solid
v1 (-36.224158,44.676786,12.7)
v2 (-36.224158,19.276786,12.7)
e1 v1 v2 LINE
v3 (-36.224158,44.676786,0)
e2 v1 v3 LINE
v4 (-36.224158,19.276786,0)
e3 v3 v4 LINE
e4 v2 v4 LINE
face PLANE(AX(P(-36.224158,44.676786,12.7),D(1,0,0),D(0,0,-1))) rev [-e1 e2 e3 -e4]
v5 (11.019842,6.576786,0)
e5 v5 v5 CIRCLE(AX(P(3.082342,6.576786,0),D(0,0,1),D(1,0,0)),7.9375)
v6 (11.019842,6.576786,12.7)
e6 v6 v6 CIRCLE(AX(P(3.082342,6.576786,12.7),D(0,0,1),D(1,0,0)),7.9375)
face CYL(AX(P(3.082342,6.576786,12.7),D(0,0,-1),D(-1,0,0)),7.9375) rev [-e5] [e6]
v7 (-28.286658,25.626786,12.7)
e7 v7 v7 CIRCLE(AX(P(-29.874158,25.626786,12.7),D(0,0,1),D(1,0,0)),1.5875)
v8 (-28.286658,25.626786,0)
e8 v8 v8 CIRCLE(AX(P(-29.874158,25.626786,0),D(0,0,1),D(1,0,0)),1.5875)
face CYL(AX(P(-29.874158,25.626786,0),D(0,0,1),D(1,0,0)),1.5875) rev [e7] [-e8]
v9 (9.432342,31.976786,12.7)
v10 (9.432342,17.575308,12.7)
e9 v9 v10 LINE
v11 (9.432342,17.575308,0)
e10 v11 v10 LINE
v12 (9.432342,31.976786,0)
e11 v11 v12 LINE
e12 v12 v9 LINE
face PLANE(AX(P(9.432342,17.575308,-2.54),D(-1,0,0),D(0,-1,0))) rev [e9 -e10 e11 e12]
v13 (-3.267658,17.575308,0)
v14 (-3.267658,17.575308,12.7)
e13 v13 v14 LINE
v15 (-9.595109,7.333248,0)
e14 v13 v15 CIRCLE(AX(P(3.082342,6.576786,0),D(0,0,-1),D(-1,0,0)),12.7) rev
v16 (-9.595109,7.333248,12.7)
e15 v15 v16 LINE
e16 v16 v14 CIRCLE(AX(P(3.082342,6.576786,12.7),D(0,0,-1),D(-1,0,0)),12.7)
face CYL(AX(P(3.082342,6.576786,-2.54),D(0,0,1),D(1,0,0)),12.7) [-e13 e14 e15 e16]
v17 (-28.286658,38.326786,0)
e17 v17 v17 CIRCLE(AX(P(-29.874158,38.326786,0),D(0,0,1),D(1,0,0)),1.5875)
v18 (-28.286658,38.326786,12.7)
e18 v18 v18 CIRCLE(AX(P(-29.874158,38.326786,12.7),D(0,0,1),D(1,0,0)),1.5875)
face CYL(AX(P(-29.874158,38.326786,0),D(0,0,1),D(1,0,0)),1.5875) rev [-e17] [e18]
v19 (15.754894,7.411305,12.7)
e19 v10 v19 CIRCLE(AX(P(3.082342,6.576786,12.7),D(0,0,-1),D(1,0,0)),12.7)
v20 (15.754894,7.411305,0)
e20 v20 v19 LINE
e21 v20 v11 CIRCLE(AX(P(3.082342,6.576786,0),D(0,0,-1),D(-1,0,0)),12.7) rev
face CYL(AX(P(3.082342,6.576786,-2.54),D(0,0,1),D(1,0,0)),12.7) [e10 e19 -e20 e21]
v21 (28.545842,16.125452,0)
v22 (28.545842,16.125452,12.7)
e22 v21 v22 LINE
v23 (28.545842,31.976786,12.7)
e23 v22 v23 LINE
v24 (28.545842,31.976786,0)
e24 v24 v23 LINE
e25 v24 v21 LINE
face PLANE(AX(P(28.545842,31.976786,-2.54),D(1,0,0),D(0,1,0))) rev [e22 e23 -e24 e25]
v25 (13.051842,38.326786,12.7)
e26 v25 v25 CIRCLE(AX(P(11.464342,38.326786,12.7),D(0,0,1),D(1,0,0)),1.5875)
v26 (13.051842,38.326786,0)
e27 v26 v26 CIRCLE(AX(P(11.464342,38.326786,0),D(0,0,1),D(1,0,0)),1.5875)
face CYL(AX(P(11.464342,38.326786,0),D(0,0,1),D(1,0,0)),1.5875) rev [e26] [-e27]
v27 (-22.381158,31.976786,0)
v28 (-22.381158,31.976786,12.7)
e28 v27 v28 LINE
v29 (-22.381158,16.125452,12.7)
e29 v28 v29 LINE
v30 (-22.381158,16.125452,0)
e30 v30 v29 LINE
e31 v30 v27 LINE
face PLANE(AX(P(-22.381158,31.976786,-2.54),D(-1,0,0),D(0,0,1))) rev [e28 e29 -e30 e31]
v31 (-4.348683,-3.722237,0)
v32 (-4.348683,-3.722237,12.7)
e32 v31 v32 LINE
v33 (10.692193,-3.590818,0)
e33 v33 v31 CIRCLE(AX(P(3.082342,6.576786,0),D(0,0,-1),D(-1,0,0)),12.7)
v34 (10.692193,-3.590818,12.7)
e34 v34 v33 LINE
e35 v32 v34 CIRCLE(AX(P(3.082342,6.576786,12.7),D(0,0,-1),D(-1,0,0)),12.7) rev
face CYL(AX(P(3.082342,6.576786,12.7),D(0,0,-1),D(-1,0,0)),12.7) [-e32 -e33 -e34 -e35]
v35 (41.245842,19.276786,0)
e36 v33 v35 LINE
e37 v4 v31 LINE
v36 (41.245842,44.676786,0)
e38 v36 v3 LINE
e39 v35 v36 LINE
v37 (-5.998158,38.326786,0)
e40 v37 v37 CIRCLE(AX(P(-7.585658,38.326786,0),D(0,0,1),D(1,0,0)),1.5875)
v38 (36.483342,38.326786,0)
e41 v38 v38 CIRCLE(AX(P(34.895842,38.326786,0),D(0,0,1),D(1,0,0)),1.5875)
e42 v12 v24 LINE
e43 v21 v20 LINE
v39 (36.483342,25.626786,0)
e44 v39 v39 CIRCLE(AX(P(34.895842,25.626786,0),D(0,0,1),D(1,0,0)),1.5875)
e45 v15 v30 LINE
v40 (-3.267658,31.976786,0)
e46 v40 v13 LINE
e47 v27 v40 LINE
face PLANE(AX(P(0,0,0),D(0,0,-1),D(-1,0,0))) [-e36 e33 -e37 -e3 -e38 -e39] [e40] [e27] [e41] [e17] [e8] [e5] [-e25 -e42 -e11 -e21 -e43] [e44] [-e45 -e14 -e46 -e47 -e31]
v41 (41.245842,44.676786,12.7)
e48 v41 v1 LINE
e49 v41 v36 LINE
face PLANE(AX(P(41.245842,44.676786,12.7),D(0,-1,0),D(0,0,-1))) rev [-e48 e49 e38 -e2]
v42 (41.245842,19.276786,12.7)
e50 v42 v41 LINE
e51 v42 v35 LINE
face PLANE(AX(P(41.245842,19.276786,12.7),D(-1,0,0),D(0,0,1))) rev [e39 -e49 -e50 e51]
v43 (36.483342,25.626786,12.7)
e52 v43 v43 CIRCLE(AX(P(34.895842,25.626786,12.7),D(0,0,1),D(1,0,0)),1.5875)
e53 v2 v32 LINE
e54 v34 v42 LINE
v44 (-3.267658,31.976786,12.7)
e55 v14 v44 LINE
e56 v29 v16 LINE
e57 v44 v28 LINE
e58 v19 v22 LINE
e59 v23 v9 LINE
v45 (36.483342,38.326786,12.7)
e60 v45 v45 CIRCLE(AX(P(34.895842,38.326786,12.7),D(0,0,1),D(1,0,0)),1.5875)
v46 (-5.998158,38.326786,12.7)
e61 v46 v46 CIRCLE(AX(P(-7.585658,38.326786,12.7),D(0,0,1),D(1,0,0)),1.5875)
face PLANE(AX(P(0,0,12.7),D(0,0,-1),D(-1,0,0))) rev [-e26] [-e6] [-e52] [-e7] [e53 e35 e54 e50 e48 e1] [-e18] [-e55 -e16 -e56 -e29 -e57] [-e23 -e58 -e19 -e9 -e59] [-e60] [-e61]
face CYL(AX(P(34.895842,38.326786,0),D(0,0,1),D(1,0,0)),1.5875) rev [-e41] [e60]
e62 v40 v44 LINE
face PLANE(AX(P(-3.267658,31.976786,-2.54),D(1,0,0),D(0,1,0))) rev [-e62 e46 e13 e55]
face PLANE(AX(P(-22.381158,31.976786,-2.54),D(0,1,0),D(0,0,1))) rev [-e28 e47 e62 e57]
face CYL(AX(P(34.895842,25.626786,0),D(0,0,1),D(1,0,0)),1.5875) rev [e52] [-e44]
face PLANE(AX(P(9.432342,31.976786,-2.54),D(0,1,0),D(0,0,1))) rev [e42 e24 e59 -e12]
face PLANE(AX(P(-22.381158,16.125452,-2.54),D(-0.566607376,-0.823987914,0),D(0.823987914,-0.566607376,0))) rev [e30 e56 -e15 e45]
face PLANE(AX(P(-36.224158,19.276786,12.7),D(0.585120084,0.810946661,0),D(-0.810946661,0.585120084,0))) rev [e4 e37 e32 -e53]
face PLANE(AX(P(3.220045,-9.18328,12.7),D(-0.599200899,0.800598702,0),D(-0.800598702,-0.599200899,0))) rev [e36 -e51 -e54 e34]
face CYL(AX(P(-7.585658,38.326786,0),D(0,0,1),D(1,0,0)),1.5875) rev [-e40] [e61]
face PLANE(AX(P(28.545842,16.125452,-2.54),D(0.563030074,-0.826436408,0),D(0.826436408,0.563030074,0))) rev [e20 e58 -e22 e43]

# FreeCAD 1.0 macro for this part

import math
import FreeCAD as App
import Part
import Sketcher
from FreeCAD import Vector
Q = App.Units.Quantity


def edges_at(feature, points):
    """Names of the edges that pass closest to the given points."""
    edges = feature.Shape.Edges
    near = lambda p: min(range(len(edges)), key=lambda i: edges[i].distToShape(Part.Vertex(*p))[0])
    return sorted({f"Edge{near(p) + 1}" for p in points})


def add_polygon(sketch, points):
    """Adds a closed chain of lines whose ends are joined by coincident constraints."""
    first, n = sketch.GeometryCount, len(points)
    for a, b in zip(points, points[1:] + points[:1]):
        sketch.addGeometry(Part.LineSegment(App.Vector(*a, 0), App.Vector(*b, 0)), False)
    for i in range(n):
        sketch.addConstraint(Sketcher.Constraint("Coincident", first + i, 2, first + (i + 1) % n, 1))

doc = App.newDocument("Part")
params = doc.addObject("Spreadsheet::Sheet", "Params")
for row, (alias, value) in enumerate([
    ("sketch1_height", "1 in"),
    ("sketch1_diameter", "0.625 in"),
    ("sketch1_width", "3.05 in"),
    ("pad1_length", "0.5 in"),
    ("sketch2_diameter", "0.125 in"),
    ("pocket1_length", "0.5 in"),
    ("sketch3_radius", "0.5 in"),
    ("pocket2_length", "0.6 in"),
    ("fillet_radius", "0.5 in"),
], start=1):
    params.set(f"A{row}", alias)
    params.set(f"B{row}", "=" + value)
    params.setAlias(f"B{row}", alias)

body = doc.addObject("PartDesign::Body", "Body")

# Sketch on XY plane
sketch1 = body.newObject("Sketcher::SketchObject", "Sketch")
sketch1.AttachmentSupport = (doc.getObject("XY_Plane"), [""])
sketch1.MapMode = "FlatFace"
add_polygon(sketch1, [(41, 19), (41, 45), (-36, 45), (-36, 19), (3, -9)])  # lines 0-4
sketch1.addGeometry(Part.Circle(Vector(3, 7, 0), Vector(0, 0, 1), 8), False)  # 5
sketch1.addConstraint(Sketcher.Constraint("Vertical", 0))
sketch1.addConstraint(Sketcher.Constraint("Horizontal", 1))
sketch1.addConstraint(Sketcher.Constraint("Vertical", 2))
sketch1.addConstraint(Sketcher.Constraint("Horizontal", 2, 2, 4, 2))
sketch1.addConstraint(Sketcher.Constraint("DistanceY", 0, 1, 0, 2, Q("1 in")))
sketch1.addConstraint(Sketcher.Constraint("Diameter", 5, Q("0.625 in")))
sketch1.addConstraint(Sketcher.Constraint("DistanceX", 1, 2, 1, 1, Q("3.05 in")))
sketch1.addConstraint(Sketcher.Constraint("DistanceY", 5, 3, 0, 2, Q("1.5 in")))
sketch1.addConstraint(Sketcher.Constraint("DistanceX", 5, 3, 0, 2, Q("1.5025 in")))
sketch1.addConstraint(Sketcher.Constraint("Distance", 3, Q("48.639701 mm")))
sketch1.addConstraint(Sketcher.Constraint("Distance", 4, Q("47.496701 mm")))
sketch1.addConstraint(Sketcher.Constraint("DistanceX", -1, 1, 5, 3, Q("3.082342 mm")))
sketch1.addConstraint(Sketcher.Constraint("DistanceY", 3, 2, -1, 1, Q("9.18328 mm")))
sketch1.setExpression("Constraints[9]", "Params.sketch1_height")
sketch1.setExpression("Constraints[10]", "Params.sketch1_diameter")
sketch1.setExpression("Constraints[11]", "Params.sketch1_width")
pad1 = body.newObject("PartDesign::Pad", "Pad")
pad1.Profile = sketch1
pad1.setExpression("Length", "Params.pad1_length")

# Sketch on XY plane
sketch2 = body.newObject("Sketcher::SketchObject", "Sketch001")
sketch2.AttachmentSupport = (doc.getObject("XY_Plane"), [""])
sketch2.MapMode = "FlatFace"
sketch2.AttachmentOffset = App.Placement(Vector(0, 0, 0.5 * 25.4), App.Rotation())
sketch2.addGeometry(Part.Circle(Vector(-29.9, 38.3, 0), Vector(0, 0, 1), 1.6), False)
sketch2.addGeometry(Part.Circle(Vector(-29.9, 25.6, 0), Vector(0, 0, 1), 1.6), False)
sketch2.addGeometry(Part.Circle(Vector(34.9, 38.3, 0), Vector(0, 0, 1), 1.6), False)
sketch2.addGeometry(Part.Circle(Vector(34.9, 25.6, 0), Vector(0, 0, 1), 1.6), False)
sketch2.addGeometry(Part.Circle(Vector(-7.6, 38.3, 0), Vector(0, 0, 1), 1.6), False)
sketch2.addGeometry(Part.Circle(Vector(11.5, 38.3, 0), Vector(0, 0, 1), 1.6), False)
sketch2.addConstraint(Sketcher.Constraint("Equal", 0, 1))
sketch2.addConstraint(Sketcher.Constraint("Equal", 1, 2))
sketch2.addConstraint(Sketcher.Constraint("Equal", 2, 3))
sketch2.addConstraint(Sketcher.Constraint("Equal", 3, 4))
sketch2.addConstraint(Sketcher.Constraint("Equal", 4, 5))
sketch2.addConstraint(Sketcher.Constraint("Horizontal", 0, 3, 2, 3))
sketch2.addConstraint(Sketcher.Constraint("Horizontal", 1, 3, 3, 3))
sketch2.addConstraint(Sketcher.Constraint("Horizontal", 2, 3, 4, 3))
sketch2.addConstraint(Sketcher.Constraint("Horizontal", 4, 3, 5, 3))
sketch2.addConstraint(Sketcher.Constraint("Vertical", 0, 3, 1, 3))
sketch2.addConstraint(Sketcher.Constraint("Vertical", 2, 3, 3, 3))
sketch2.addConstraint(Sketcher.Constraint("Diameter", 0, Q("0.125 in")))
sketch2.addConstraint(Sketcher.Constraint("DistanceY", 1, 3, 0, 3, Q("0.5 in")))
sketch2.addConstraint(Sketcher.Constraint("DistanceX", 0, 3, 2, 3, Q("2.55 in")))
sketch2.addConstraint(Sketcher.Constraint("DistanceX", 4, 3, 5, 3, Q("0.75 in")))
sketch2.addConstraint(Sketcher.Constraint("DistanceX", 0, 3, 4, 3, Q("0.8775 in")))
sketch2.addConstraint(Sketcher.Constraint("DistanceX", 0, 3, -1, 1, Q("29.874158 mm")))
sketch2.addConstraint(Sketcher.Constraint("DistanceY", -1, 1, 0, 3, Q("38.326786 mm")))
sketch2.setExpression("Constraints[11]", "Params.sketch2_diameter")
pocket1 = body.newObject("PartDesign::Pocket", "Pocket")
pocket1.Profile = sketch2
pocket1.setExpression("Length", "Params.pocket1_length")

# Sketch on XY plane
sketch3 = body.newObject("Sketcher::SketchObject", "Sketch002")
sketch3.AttachmentSupport = (doc.getObject("XY_Plane"), [""])
sketch3.MapMode = "FlatFace"
sketch3.AttachmentOffset = App.Placement(Vector(0, 0, 0.5 * 25.4), App.Rotation())
sketch3.addGeometry(Part.LineSegment(Vector(-3, 32, 0), Vector(-22, 32, 0)), False)
sketch3.addGeometry(Part.LineSegment(Vector(-22, 32, 0), Vector(-22, 16, 0)), False)
sketch3.addGeometry(Part.LineSegment(Vector(-22, 16, 0), Vector(-10, 7, 0)), False)
sketch3.addGeometry(Part.ArcOfCircle(Part.Circle(Vector(3, 7, 0), Vector(0, 0, 1), 13), math.radians(120), math.radians(177)), False)
sketch3.addGeometry(Part.LineSegment(Vector(-3, 18, 0), Vector(-3, 32, 0)), False)
sketch3.addGeometry(Part.LineSegment(Vector(9, 32, 0), Vector(9, 18, 0)), False)
sketch3.addGeometry(Part.ArcOfCircle(Part.Circle(Vector(3, 7, 0), Vector(0, 0, 1), 13), math.radians(4), math.radians(60)), False)
sketch3.addGeometry(Part.LineSegment(Vector(16, 7, 0), Vector(29, 16, 0)), False)
sketch3.addGeometry(Part.LineSegment(Vector(29, 16, 0), Vector(29, 32, 0)), False)
sketch3.addGeometry(Part.LineSegment(Vector(29, 32, 0), Vector(9, 32, 0)), False)
sketch3.addConstraint(Sketcher.Constraint("Coincident", 0, 2, 1, 1))
sketch3.addConstraint(Sketcher.Constraint("Coincident", 1, 2, 2, 1))
sketch3.addConstraint(Sketcher.Constraint("Coincident", 2, 2, 3, 2))
sketch3.addConstraint(Sketcher.Constraint("Coincident", 3, 1, 4, 1))
sketch3.addConstraint(Sketcher.Constraint("Coincident", 4, 2, 0, 1))
sketch3.addConstraint(Sketcher.Constraint("Coincident", 5, 2, 6, 2))
sketch3.addConstraint(Sketcher.Constraint("Coincident", 6, 1, 7, 1))
sketch3.addConstraint(Sketcher.Constraint("Coincident", 7, 2, 8, 1))
sketch3.addConstraint(Sketcher.Constraint("Coincident", 8, 2, 9, 1))
sketch3.addConstraint(Sketcher.Constraint("Coincident", 9, 2, 5, 1))
sketch3.addConstraint(Sketcher.Constraint("Horizontal", 0))
sketch3.addConstraint(Sketcher.Constraint("Vertical", 1))
sketch3.addConstraint(Sketcher.Constraint("Vertical", 4))
sketch3.addConstraint(Sketcher.Constraint("Vertical", 5))
sketch3.addConstraint(Sketcher.Constraint("Vertical", 8))
sketch3.addConstraint(Sketcher.Constraint("Horizontal", 9))
sketch3.addConstraint(Sketcher.Constraint("Coincident", 6, 3, 3, 3))
sketch3.addConstraint(Sketcher.Constraint("Equal", 3, 6))
sketch3.addConstraint(Sketcher.Constraint("Horizontal", 3, 1, 5, 2))
sketch3.addConstraint(Sketcher.Constraint("Horizontal", 1, 2, 7, 2))
sketch3.addConstraint(Sketcher.Constraint("Horizontal", 4, 2, 8, 2))
sketch3.addConstraint(Sketcher.Constraint("Equal", 0, 9))
sketch3.addConstraint(Sketcher.Constraint("Radius", 3, Q("0.5 in")))
sketch3.addConstraint(Sketcher.Constraint("DistanceY", 3, 3, 0, 2, Q("1 in")))
sketch3.addConstraint(Sketcher.Constraint("DistanceX", 3, 1, 5, 2, Q("0.5 in")))
sketch3.addConstraint(Sketcher.Constraint("DistanceX", 0, 2, 0, 1, Q("0.7525 in")))
sketch3.addConstraint(Sketcher.Constraint("Distance", 7, Q("15.477232 mm")))
sketch3.addConstraint(Sketcher.Constraint("DistanceY", 1, 2, 1, 1, Q("15.851334 mm")))
sketch3.addConstraint(Sketcher.Constraint("DistanceX", -1, 1, 3, 3, Q("3.082342 mm")))
sketch3.addConstraint(Sketcher.Constraint("DistanceY", -1, 1, 1, 2, Q("16.125452 mm")))
sketch3.addConstraint(Sketcher.Constraint("DistanceX", 2, 2, -1, 1, Q("9.595109 mm")))
sketch3.setExpression("Constraints[22]", "Params.sketch3_radius")
pocket2 = body.newObject("PartDesign::Pocket", "Pocket001")
pocket2.Profile = sketch3
pocket2.setExpression("Length", "Params.pocket2_length")
doc.recompute()

fillet = body.newObject("PartDesign::Fillet", "Fillet")
fillet.Base = (pocket2, edges_at(pocket2, [(3.22, -9.183, 6.35)]))
fillet.setExpression("Radius", "Params.fillet_radius")

doc.recompute()
